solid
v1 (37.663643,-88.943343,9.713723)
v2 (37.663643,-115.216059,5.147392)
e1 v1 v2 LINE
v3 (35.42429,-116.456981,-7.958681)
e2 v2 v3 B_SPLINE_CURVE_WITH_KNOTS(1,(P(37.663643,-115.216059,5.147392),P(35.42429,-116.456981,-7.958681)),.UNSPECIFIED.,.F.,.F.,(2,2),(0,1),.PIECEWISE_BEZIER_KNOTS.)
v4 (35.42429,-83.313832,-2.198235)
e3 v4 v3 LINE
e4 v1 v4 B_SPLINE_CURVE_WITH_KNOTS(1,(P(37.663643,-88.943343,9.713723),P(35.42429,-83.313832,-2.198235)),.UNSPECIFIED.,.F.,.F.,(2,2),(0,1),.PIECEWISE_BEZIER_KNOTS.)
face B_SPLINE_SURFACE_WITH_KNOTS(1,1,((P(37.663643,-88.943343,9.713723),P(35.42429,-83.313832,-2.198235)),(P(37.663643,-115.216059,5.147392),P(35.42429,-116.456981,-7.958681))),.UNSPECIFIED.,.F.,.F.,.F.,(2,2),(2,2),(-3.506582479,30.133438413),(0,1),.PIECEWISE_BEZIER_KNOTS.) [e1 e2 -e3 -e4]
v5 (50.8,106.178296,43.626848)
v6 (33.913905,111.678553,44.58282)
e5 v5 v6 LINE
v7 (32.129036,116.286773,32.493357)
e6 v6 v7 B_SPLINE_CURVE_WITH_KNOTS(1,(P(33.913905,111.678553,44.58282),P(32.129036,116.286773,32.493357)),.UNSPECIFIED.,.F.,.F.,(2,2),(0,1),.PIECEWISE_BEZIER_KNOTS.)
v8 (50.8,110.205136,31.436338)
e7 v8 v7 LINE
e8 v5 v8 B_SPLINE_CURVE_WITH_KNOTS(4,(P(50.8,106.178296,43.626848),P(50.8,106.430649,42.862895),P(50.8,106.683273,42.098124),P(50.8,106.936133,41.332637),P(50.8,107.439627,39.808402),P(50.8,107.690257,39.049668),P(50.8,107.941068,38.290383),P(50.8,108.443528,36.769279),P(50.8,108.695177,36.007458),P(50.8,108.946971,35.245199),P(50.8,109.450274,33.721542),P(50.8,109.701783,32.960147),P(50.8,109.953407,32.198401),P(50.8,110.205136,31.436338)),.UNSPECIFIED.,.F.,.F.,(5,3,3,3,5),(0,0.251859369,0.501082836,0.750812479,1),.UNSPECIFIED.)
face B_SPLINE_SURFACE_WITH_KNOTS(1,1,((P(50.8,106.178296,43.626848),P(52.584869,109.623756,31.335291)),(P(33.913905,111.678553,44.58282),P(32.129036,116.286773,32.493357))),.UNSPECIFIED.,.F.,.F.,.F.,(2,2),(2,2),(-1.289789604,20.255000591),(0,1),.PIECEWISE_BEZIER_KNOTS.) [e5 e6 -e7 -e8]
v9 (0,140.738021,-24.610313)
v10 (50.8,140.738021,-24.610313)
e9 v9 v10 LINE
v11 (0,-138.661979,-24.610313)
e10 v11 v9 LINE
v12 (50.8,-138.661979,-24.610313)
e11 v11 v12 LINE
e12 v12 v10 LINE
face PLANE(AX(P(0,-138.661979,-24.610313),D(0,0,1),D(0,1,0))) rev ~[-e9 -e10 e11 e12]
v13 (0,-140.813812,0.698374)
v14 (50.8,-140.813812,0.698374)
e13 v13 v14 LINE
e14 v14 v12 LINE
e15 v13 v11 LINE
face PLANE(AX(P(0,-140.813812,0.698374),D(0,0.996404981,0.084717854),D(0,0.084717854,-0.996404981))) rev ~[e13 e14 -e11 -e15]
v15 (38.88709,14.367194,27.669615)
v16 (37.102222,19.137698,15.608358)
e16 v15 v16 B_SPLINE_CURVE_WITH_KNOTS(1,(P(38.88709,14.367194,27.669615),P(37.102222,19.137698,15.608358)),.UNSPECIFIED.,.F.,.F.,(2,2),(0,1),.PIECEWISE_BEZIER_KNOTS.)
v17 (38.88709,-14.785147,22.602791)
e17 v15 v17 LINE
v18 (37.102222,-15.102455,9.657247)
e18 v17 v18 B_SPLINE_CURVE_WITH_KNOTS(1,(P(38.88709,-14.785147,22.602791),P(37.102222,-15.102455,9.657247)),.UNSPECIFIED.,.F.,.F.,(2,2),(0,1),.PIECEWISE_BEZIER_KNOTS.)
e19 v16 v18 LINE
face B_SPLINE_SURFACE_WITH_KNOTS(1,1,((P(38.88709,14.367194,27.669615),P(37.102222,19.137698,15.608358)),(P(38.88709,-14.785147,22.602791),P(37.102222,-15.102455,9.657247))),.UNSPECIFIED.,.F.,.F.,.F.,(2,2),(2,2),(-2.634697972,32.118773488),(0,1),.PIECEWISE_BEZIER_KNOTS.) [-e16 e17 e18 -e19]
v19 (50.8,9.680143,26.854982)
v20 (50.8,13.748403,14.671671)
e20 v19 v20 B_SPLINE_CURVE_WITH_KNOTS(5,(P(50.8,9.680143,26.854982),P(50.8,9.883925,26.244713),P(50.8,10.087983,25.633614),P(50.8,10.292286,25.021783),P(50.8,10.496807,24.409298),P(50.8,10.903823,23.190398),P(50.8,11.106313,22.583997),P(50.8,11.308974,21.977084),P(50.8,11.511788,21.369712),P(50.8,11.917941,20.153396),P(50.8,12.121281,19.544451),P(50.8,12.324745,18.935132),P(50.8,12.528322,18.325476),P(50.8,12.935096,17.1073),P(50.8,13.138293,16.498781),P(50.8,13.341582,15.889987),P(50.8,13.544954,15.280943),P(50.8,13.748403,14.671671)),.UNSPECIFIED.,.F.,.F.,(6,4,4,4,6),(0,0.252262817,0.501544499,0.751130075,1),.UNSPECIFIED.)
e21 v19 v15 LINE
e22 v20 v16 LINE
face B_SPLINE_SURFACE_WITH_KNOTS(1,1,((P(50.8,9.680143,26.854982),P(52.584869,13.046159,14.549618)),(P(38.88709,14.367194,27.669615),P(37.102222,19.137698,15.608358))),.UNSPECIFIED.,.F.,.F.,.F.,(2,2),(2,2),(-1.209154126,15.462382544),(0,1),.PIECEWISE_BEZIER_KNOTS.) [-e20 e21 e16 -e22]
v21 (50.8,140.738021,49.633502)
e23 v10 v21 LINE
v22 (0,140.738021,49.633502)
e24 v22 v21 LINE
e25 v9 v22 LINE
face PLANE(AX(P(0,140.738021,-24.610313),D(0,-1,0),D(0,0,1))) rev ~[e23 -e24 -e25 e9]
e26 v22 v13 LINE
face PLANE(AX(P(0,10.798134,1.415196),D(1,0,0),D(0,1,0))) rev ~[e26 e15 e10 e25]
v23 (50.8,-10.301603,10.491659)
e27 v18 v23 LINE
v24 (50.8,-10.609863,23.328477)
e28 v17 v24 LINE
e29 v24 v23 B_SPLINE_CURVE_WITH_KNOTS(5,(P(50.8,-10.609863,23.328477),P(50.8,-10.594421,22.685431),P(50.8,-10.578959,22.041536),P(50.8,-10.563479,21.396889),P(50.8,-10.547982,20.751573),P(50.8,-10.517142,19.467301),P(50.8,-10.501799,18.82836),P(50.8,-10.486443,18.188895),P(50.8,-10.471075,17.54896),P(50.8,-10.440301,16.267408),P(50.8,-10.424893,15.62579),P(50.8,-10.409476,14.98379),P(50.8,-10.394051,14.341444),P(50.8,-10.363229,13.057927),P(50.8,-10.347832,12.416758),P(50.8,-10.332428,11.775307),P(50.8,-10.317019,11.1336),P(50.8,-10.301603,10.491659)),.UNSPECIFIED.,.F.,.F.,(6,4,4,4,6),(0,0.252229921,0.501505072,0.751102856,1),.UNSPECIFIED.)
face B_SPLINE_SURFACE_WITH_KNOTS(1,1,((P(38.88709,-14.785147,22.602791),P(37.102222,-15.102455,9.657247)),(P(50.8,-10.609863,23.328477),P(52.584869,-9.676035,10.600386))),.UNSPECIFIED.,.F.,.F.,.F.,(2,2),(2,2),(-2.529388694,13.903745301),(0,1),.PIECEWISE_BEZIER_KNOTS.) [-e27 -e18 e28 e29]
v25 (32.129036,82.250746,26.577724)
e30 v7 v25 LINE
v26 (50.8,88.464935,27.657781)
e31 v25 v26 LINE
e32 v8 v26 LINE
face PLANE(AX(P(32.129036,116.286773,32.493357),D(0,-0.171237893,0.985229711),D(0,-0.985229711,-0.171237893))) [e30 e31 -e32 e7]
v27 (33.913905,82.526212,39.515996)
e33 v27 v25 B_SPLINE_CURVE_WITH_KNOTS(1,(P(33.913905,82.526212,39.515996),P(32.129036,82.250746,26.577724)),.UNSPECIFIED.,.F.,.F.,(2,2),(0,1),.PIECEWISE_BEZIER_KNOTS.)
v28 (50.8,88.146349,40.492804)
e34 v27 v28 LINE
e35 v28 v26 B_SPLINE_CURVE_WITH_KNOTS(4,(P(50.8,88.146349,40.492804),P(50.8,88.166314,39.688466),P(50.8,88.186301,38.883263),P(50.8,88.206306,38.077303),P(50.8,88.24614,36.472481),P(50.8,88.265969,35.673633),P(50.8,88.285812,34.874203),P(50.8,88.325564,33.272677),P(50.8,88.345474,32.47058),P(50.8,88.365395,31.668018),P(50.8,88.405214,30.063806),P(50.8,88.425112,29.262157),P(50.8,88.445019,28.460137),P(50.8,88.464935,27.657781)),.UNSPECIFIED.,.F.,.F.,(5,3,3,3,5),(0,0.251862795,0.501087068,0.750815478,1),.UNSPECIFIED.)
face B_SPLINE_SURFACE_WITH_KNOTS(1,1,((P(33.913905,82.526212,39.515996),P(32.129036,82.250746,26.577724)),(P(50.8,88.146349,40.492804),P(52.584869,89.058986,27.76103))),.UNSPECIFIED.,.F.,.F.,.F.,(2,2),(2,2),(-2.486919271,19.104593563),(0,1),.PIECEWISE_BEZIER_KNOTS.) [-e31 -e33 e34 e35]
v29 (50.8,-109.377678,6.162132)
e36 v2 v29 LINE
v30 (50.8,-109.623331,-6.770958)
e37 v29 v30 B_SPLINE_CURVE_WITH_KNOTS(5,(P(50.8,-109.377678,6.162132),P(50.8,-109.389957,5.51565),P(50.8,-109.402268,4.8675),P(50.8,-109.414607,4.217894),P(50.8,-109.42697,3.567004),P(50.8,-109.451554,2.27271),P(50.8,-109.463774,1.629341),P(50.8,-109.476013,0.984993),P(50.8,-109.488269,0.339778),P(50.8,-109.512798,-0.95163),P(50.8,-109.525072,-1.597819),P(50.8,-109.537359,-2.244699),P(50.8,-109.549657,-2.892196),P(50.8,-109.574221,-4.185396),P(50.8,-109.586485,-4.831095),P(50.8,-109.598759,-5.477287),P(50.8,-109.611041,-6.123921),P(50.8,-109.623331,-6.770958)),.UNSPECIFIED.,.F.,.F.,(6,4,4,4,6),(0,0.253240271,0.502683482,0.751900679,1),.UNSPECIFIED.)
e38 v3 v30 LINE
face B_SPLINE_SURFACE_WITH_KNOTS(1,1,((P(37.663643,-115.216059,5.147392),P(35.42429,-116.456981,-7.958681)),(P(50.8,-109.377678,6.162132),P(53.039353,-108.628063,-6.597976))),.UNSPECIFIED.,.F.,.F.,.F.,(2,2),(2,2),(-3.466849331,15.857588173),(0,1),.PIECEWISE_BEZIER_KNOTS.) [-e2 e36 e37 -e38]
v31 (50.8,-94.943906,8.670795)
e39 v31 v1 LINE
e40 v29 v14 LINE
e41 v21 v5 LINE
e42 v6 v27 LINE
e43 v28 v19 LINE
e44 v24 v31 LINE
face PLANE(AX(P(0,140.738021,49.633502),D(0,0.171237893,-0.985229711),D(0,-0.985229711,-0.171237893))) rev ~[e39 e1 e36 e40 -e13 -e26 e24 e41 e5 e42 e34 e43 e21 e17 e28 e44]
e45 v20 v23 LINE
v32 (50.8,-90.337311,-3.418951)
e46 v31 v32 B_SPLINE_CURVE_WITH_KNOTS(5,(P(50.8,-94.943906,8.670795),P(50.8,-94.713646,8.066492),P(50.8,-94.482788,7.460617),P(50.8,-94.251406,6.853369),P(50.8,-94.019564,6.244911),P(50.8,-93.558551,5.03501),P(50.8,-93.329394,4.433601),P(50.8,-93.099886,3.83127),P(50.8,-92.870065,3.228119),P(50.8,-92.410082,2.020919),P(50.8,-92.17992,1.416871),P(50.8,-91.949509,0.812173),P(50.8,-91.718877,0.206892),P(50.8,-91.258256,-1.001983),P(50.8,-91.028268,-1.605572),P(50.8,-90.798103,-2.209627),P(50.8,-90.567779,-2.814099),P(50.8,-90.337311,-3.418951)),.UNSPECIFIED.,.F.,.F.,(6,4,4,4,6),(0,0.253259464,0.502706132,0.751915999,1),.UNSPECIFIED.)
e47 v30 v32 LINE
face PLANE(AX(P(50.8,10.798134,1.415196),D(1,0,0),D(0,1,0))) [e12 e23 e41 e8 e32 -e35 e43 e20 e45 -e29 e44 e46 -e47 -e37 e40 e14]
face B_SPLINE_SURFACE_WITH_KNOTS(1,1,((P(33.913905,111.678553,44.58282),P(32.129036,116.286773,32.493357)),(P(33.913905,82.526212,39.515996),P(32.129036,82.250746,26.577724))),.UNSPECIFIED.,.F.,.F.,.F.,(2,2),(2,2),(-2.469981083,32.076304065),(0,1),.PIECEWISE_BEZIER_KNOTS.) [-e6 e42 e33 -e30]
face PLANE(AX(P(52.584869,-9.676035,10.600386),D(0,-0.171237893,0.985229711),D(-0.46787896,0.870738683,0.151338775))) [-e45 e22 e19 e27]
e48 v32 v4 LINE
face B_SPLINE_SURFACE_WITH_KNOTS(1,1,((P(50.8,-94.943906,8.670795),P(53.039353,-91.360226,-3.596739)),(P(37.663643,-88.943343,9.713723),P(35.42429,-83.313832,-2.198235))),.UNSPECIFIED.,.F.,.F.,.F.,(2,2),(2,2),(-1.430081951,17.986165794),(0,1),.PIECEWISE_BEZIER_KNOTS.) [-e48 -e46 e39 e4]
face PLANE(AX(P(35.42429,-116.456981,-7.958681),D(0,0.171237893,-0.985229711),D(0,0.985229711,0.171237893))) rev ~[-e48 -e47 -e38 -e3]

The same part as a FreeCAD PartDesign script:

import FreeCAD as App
import Part
import Sketcher
Q = App.Units.Quantity

doc = App.newDocument("Part")
body = doc.addObject("PartDesign::Body", "Body")

# Sketch on YZ plane
sketch1 = body.newObject("Sketcher::SketchObject", "Sketch")
sketch1.AttachmentSupport = (doc.getObject("YZ_Plane"), [""])
sketch1.MapMode = "FlatFace"
sketch1.addGeometry([
    Part.LineSegment(App.Vector(-140.813812, 0.698374, 0), App.Vector(-138.661979, -24.610313, 0)),
    Part.LineSegment(App.Vector(-138.661979, -24.610313, 0), App.Vector(140.738021, -24.610313, 0)),
    Part.LineSegment(App.Vector(140.738021, -24.610313, 0), App.Vector(140.738021, 49.633502, 0)),
    Part.LineSegment(App.Vector(140.738021, 49.633502, 0), App.Vector(-140.813812, 0.698374, 0)),
], False)
sketch1.addConstraint([
    Sketcher.Constraint("Coincident", 0, 2, 1, 1),
    Sketcher.Constraint("Coincident", 1, 2, 2, 1),
    Sketcher.Constraint("Coincident", 2, 2, 3, 1),
    Sketcher.Constraint("Coincident", 3, 2, 0, 1),
    Sketcher.Constraint("Horizontal", 1),
    Sketcher.Constraint("Vertical", 2),
    Sketcher.Constraint("DistanceX", 1, 1, 1, 2, Q("11 in")),
    Sketcher.Constraint("Distance", 0, Q("1 in")),
    Sketcher.Constraint("Distance", 3, Q("285.77278 mm")),
    Sketcher.Constraint("DistanceY", 2, 1, 2, 2, Q("74.243815 mm")),
    Sketcher.Constraint("DistanceX", 0, 2, -1, 1, Q("138.661979 mm")),
    Sketcher.Constraint("DistanceY", 0, 2, -1, 1, Q("24.610313 mm")),
])
pad1 = body.newObject("PartDesign::Pad", "Pad")
pad1.Profile = sketch1
pad1.Length = Q("2 in")

# Sketch on an angled plane
sketch2 = body.newObject("Sketcher::SketchObject", "Sketch001")
sketch2.Placement = App.Placement(App.Vector(0, -4.246823, 24.434405), App.Rotation(App.Vector(1, 0, 0), App.Vector(0, 0.985229711, 0.171237893), App.Vector(0, -0.171237893, 0.985229711), "ZXY"))
sketch2.addGeometry([
    Part.LineSegment(App.Vector(33.913905, 117.663296, 0), App.Vector(33.913905, 88.073912, 0)),  # 0
    Part.LineSegment(App.Vector(33.913905, 88.073912, 0), App.Vector(50.8, 93.778305, 0)),  # 1
    Part.LineSegment(App.Vector(50.8, 93.778305, 0), App.Vector(50.8, 112.080581, 0)),  # 2
    Part.LineSegment(App.Vector(50.8, 112.080581, 0), App.Vector(33.913905, 117.663296, 0)),  # 3
    Part.LineSegment(App.Vector(50.8, -6.458433, 0), App.Vector(50.8, 14.135755, 0)),  # 4
    Part.LineSegment(App.Vector(50.8, 14.135755, 0), App.Vector(38.88709, 18.893073, 0)),  # 5
    Part.LineSegment(App.Vector(38.88709, 18.893073, 0), App.Vector(38.88709, -10.696312, 0)),  # 6
    Part.LineSegment(App.Vector(38.88709, -10.696312, 0), App.Vector(50.8, -6.458433, 0)),  # 7
], False)
sketch2.addConstraint([
    Sketcher.Constraint("Coincident", 0, 2, 1, 1),
    Sketcher.Constraint("Coincident", 1, 2, 2, 1),
    Sketcher.Constraint("Coincident", 2, 2, 3, 1),
    Sketcher.Constraint("Coincident", 3, 2, 0, 1),
    Sketcher.Constraint("Coincident", 4, 2, 5, 1),
    Sketcher.Constraint("Coincident", 5, 2, 6, 1),
    Sketcher.Constraint("Coincident", 6, 2, 7, 1),
    Sketcher.Constraint("Coincident", 7, 2, 4, 1),
    Sketcher.Constraint("Vertical", 0),
    Sketcher.Constraint("Vertical", 2),
    Sketcher.Constraint("Vertical", 4),
    Sketcher.Constraint("Vertical", 6),
    Sketcher.Constraint("Vertical", 2, 2, 4, 2),
    Sketcher.Constraint("Equal", 0, 6),
    Sketcher.Constraint("DistanceX", -1, 1, 1, 2, Q("2 in")),
    Sketcher.Constraint("DistanceY", 4, 1, 4, 2, Q("20.594188 mm")),
    Sketcher.Constraint("Distance", 1, Q("17.823589 mm")),
    Sketcher.Constraint("Distance", 3, Q("17.78502 mm")),
    Sketcher.Constraint("Distance", 7, Q("12.644249 mm")),
    Sketcher.Constraint("DistanceY", 0, 2, 0, 1, Q("29.589385 mm")),
    Sketcher.Constraint("DistanceY", 2, 1, 2, 2, Q("18.302277 mm")),
    Sketcher.Constraint("DistanceY", -1, 1, 0, 2, Q("88.073912 mm")),
    Sketcher.Constraint("DistanceX", -1, 1, 5, 2, Q("38.88709 mm")),
    Sketcher.Constraint("DistanceY", 6, 2, -1, 1, Q("10.696312 mm")),
])
pocket1 = body.newObject("PartDesign::Pocket", "Pocket")
pocket1.Profile = sketch2
pocket1.Length = Q("0.5 in")
pocket1.TaperAngle = 8

# Sketch on an angled plane
sketch3 = body.newObject("Sketcher::SketchObject", "Sketch002")
sketch3.Placement = App.Placement(App.Vector(0, -4.246823, 24.434405), App.Rotation(App.Vector(1, 0, 0), App.Vector(0, 0.985229711, 0.171237893), App.Vector(0, -0.171237893, 0.985229711), "ZXY"))
sketch3.addGeometry([
    Part.LineSegment(App.Vector(37.663643, -112.632856, 0), App.Vector(50.8, -106.706947, 0)),
    Part.LineSegment(App.Vector(50.8, -106.706947, 0), App.Vector(50.8, -92.056788, 0)),
    Part.LineSegment(App.Vector(50.8, -92.056788, 0), App.Vector(37.663643, -85.966267, 0)),
    Part.LineSegment(App.Vector(37.663643, -85.966267, 0), App.Vector(37.663643, -112.632856, 0)),
], False)
sketch3.addConstraint([
    Sketcher.Constraint("Coincident", 0, 2, 1, 1),
    Sketcher.Constraint("Coincident", 1, 2, 2, 1),
    Sketcher.Constraint("Coincident", 2, 2, 3, 1),
    Sketcher.Constraint("Coincident", 3, 2, 0, 1),
    Sketcher.Constraint("Vertical", 1),
    Sketcher.Constraint("Vertical", 3),
    Sketcher.Constraint("DistanceX", -1, 1, 0, 2, Q("2 in")),
    Sketcher.Constraint("DistanceY", 1, 1, 1, 2, Q("14.650159 mm")),
    Sketcher.Constraint("DistanceY", 3, 2, 3, 1, Q("26.666589 mm")),
    Sketcher.Constraint("DistanceY", 1, 2, -1, 1, Q("92.056788 mm")),
    Sketcher.Constraint("DistanceY", 1, 2, 2, 2, Q("6.090522 mm")),
    Sketcher.Constraint("Distance", 0, Q("14.411116 mm")),
])
pocket2 = body.newObject("PartDesign::Pocket", "Pocket001")
pocket2.Profile = sketch3
pocket2.Length = Q("0.5 in")
pocket2.TaperAngle = 10

doc.recompute()
